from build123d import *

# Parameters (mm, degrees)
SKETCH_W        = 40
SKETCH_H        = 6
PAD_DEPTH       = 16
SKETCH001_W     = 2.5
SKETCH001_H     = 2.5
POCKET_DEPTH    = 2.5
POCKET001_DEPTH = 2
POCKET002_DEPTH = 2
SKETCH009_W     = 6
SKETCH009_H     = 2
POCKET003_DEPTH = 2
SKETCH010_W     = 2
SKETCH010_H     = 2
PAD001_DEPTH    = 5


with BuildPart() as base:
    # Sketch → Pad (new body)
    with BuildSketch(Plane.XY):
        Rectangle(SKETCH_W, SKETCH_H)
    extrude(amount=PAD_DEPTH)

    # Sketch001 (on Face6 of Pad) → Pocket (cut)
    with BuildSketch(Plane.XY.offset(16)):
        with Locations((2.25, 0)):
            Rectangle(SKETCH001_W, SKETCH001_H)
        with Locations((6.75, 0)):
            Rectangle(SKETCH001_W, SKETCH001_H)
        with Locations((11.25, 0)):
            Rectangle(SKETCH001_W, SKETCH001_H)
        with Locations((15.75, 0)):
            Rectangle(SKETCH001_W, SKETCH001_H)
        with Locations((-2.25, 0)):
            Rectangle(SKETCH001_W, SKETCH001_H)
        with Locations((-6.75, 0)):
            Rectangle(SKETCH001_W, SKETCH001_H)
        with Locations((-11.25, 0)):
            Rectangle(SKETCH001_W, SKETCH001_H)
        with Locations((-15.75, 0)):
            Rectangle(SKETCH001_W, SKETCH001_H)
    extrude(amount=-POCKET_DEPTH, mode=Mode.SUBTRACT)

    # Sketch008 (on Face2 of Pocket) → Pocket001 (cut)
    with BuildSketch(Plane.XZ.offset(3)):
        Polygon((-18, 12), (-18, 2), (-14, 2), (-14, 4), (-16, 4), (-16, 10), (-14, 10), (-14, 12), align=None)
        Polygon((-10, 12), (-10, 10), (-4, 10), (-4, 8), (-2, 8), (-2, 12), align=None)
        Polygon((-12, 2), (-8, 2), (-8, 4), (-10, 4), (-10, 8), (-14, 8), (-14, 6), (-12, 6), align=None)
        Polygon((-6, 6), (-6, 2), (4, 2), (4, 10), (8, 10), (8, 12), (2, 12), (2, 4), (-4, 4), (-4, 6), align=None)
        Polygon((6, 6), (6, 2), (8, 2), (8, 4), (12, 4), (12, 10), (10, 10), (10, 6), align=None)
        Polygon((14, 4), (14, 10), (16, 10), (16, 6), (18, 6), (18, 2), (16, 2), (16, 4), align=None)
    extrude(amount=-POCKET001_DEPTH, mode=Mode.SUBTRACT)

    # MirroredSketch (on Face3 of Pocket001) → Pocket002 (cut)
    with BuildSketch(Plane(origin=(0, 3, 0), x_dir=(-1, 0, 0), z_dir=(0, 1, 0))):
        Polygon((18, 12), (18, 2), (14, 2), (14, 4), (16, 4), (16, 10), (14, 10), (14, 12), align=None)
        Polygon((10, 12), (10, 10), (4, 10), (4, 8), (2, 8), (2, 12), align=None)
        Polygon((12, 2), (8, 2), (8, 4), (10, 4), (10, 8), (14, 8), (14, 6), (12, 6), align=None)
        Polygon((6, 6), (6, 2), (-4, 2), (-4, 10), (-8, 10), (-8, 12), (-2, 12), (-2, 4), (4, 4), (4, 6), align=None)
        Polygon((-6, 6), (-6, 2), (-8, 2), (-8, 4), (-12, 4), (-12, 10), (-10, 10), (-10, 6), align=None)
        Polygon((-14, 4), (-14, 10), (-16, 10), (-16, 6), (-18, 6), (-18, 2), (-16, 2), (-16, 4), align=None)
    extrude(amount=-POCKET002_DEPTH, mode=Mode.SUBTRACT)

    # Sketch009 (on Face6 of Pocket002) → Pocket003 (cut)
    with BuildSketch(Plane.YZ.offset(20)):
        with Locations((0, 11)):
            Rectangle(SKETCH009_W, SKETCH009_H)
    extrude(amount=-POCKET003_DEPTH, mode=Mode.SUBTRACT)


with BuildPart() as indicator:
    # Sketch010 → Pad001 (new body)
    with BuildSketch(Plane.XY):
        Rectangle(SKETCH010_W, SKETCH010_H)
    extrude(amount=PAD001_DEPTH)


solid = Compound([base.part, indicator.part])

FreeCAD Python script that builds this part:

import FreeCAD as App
import Part
import Sketcher

doc = App.newDocument("Part")
body = doc.addObject("PartDesign::Body", "Body")

# Sketch on XY plane
sketch1 = body.newObject("Sketcher::SketchObject", "Sketch")
sketch1.AttachmentSupport = (doc.getObject("XY_Plane"), [""])
sketch1.MapMode = "FlatFace"
sketch1.addGeometry([
    Part.LineSegment(App.Vector(-20, 3, 0), App.Vector(-20, -3, 0)),
    Part.LineSegment(App.Vector(-20, -3, 0), App.Vector(20, -3, 0)),
    Part.LineSegment(App.Vector(20, -3, 0), App.Vector(20, 3, 0)),
    Part.LineSegment(App.Vector(20, 3, 0), App.Vector(-20, 3, 0)),
], False)
sketch1.addConstraint([
    Sketcher.Constraint("Coincident", 0, 2, 1, 1),
    Sketcher.Constraint("Coincident", 1, 2, 2, 1),
    Sketcher.Constraint("Coincident", 2, 2, 3, 1),
    Sketcher.Constraint("Coincident", 3, 2, 0, 1),
    Sketcher.Constraint("Vertical", 0),
    Sketcher.Constraint("Horizontal", 1),
    Sketcher.Constraint("Vertical", 2),
    Sketcher.Constraint("Horizontal", 3),
    Sketcher.Constraint("Symmetric", 0, 2, 2, 2, -1, 1),
    Sketcher.Constraint("DistanceX", 1, 1, 1, 2, 40.0),
    Sketcher.Constraint("DistanceY", 0, 2, 0, 1, 6.0),
])
pad1 = body.newObject("PartDesign::Pad", "Pad")
pad1.Profile = sketch1
pad1.Length = 16

# Sketch on XY plane
sketch2 = body.newObject("Sketcher::SketchObject", "Sketch001")
sketch2.AttachmentSupport = (doc.getObject("XY_Plane"), [""])
sketch2.MapMode = "FlatFace"
sketch2.AttachmentOffset = App.Placement(App.Vector(0, 0, 16), App.Rotation())
sketch2.addGeometry([
    Part.LineSegment(App.Vector(1, 1.25, 0), App.Vector(1, -1.25, 0)),  # 0
    Part.LineSegment(App.Vector(1, -1.25, 0), App.Vector(3.5, -1.25, 0)),  # 1
    Part.LineSegment(App.Vector(3.5, -1.25, 0), App.Vector(3.5, 1.25, 0)),  # 2
    Part.LineSegment(App.Vector(3.5, 1.25, 0), App.Vector(1, 1.25, 0)),  # 3
    Part.LineSegment(App.Vector(5.5, 1.25, 0), App.Vector(5.5, -1.25, 0)),  # 4
    Part.LineSegment(App.Vector(5.5, -1.25, 0), App.Vector(8, -1.25, 0)),  # 5
    Part.LineSegment(App.Vector(8, -1.25, 0), App.Vector(8, 1.25, 0)),  # 6
    Part.LineSegment(App.Vector(8, 1.25, 0), App.Vector(5.5, 1.25, 0)),  # 7
    Part.LineSegment(App.Vector(10, 1.25, 0), App.Vector(10, -1.25, 0)),  # 8
    Part.LineSegment(App.Vector(10, -1.25, 0), App.Vector(12.5, -1.25, 0)),  # 9
    Part.LineSegment(App.Vector(12.5, -1.25, 0), App.Vector(12.5, 1.25, 0)),  # 10
    Part.LineSegment(App.Vector(12.5, 1.25, 0), App.Vector(10, 1.25, 0)),  # 11
    Part.LineSegment(App.Vector(14.5, 1.25, 0), App.Vector(14.5, -1.25, 0)),  # 12
    Part.LineSegment(App.Vector(14.5, -1.25, 0), App.Vector(17, -1.25, 0)),  # 13
    Part.LineSegment(App.Vector(17, -1.25, 0), App.Vector(17, 1.25, 0)),  # 14
    Part.LineSegment(App.Vector(17, 1.25, 0), App.Vector(14.5, 1.25, 0)),  # 15
    Part.LineSegment(App.Vector(-3.5, 1.25, 0), App.Vector(-3.5, -1.25, 0)),  # 16
    Part.LineSegment(App.Vector(-3.5, -1.25, 0), App.Vector(-1, -1.25, 0)),  # 17
    Part.LineSegment(App.Vector(-1, -1.25, 0), App.Vector(-1, 1.25, 0)),  # 18
    Part.LineSegment(App.Vector(-1, 1.25, 0), App.Vector(-3.5, 1.25, 0)),  # 19
    Part.LineSegment(App.Vector(-8, 1.25, 0), App.Vector(-8, -1.25, 0)),  # 20
    Part.LineSegment(App.Vector(-8, -1.25, 0), App.Vector(-5.5, -1.25, 0)),  # 21
    Part.LineSegment(App.Vector(-5.5, -1.25, 0), App.Vector(-5.5, 1.25, 0)),  # 22
    Part.LineSegment(App.Vector(-5.5, 1.25, 0), App.Vector(-8, 1.25, 0)),  # 23
    Part.LineSegment(App.Vector(-12.5, 1.25, 0), App.Vector(-12.5, -1.25, 0)),  # 24
    Part.LineSegment(App.Vector(-12.5, -1.25, 0), App.Vector(-10, -1.25, 0)),  # 25
    Part.LineSegment(App.Vector(-10, -1.25, 0), App.Vector(-10, 1.25, 0)),  # 26
    Part.LineSegment(App.Vector(-10, 1.25, 0), App.Vector(-12.5, 1.25, 0)),  # 27
    Part.LineSegment(App.Vector(-17, 1.25, 0), App.Vector(-17, -1.25, 0)),  # 28
    Part.LineSegment(App.Vector(-17, -1.25, 0), App.Vector(-14.5, -1.25, 0)),  # 29
    Part.LineSegment(App.Vector(-14.5, -1.25, 0), App.Vector(-14.5, 1.25, 0)),  # 30
    Part.LineSegment(App.Vector(-14.5, 1.25, 0), App.Vector(-17, 1.25, 0)),  # 31
], False)
sketch2.addConstraint([
    Sketcher.Constraint("Coincident", 0, 2, 1, 1),
    Sketcher.Constraint("Coincident", 1, 2, 2, 1),
    Sketcher.Constraint("Coincident", 2, 2, 3, 1),
    Sketcher.Constraint("Coincident", 3, 2, 0, 1),
    Sketcher.Constraint("Coincident", 4, 2, 5, 1),
    Sketcher.Constraint("Coincident", 5, 2, 6, 1),
    Sketcher.Constraint("Coincident", 6, 2, 7, 1),
    Sketcher.Constraint("Coincident", 7, 2, 4, 1),
    Sketcher.Constraint("Coincident", 8, 2, 9, 1),
    Sketcher.Constraint("Coincident", 9, 2, 10, 1),
    Sketcher.Constraint("Coincident", 10, 2, 11, 1),
    Sketcher.Constraint("Coincident", 11, 2, 8, 1),
    Sketcher.Constraint("Coincident", 12, 2, 13, 1),
    Sketcher.Constraint("Coincident", 13, 2, 14, 1),
    Sketcher.Constraint("Coincident", 14, 2, 15, 1),
    Sketcher.Constraint("Coincident", 15, 2, 12, 1),
    Sketcher.Constraint("Coincident", 16, 2, 17, 1),
    Sketcher.Constraint("Coincident", 17, 2, 18, 1),
    Sketcher.Constraint("Coincident", 18, 2, 19, 1),
    Sketcher.Constraint("Coincident", 19, 2, 16, 1),
    Sketcher.Constraint("Coincident", 20, 2, 21, 1),
    Sketcher.Constraint("Coincident", 21, 2, 22, 1),
    Sketcher.Constraint("Coincident", 22, 2, 23, 1),
    Sketcher.Constraint("Coincident", 23, 2, 20, 1),
    Sketcher.Constraint("Coincident", 24, 2, 25, 1),
    Sketcher.Constraint("Coincident", 25, 2, 26, 1),
    Sketcher.Constraint("Coincident", 26, 2, 27, 1),
    Sketcher.Constraint("Coincident", 27, 2, 24, 1),
    Sketcher.Constraint("Coincident", 28, 2, 29, 1),
    Sketcher.Constraint("Coincident", 29, 2, 30, 1),
    Sketcher.Constraint("Coincident", 30, 2, 31, 1),
    Sketcher.Constraint("Coincident", 31, 2, 28, 1),
    Sketcher.Constraint("Vertical", 0),
    Sketcher.Constraint("Horizontal", 1),
    Sketcher.Constraint("Vertical", 2),
    Sketcher.Constraint("Horizontal", 3),
    Sketcher.Constraint("Vertical", 4),
    Sketcher.Constraint("Horizontal", 5),
    Sketcher.Constraint("Vertical", 6),
    Sketcher.Constraint("Horizontal", 7),
    Sketcher.Constraint("Vertical", 8),
    Sketcher.Constraint("Horizontal", 9),
    Sketcher.Constraint("Vertical", 10),
    Sketcher.Constraint("Horizontal", 11),
    Sketcher.Constraint("Vertical", 12),
    Sketcher.Constraint("Horizontal", 13),
    Sketcher.Constraint("Vertical", 14),
    Sketcher.Constraint("Horizontal", 15),
    Sketcher.Constraint("Vertical", 16),
    Sketcher.Constraint("Horizontal", 17),
    Sketcher.Constraint("Vertical", 18),
    Sketcher.Constraint("Horizontal", 19),
    Sketcher.Constraint("Vertical", 20),
    Sketcher.Constraint("Horizontal", 21),
    Sketcher.Constraint("Vertical", 22),
    Sketcher.Constraint("Horizontal", 23),
    Sketcher.Constraint("Vertical", 24),
    Sketcher.Constraint("Horizontal", 25),
    Sketcher.Constraint("Vertical", 26),
    Sketcher.Constraint("Horizontal", 27),
    Sketcher.Constraint("Vertical", 28),
    Sketcher.Constraint("Horizontal", 29),
    Sketcher.Constraint("Vertical", 30),
    Sketcher.Constraint("Horizontal", 31),
    Sketcher.Constraint("Symmetric", 2, 2, 16, 2, -1, 1),
    Sketcher.Constraint("Symmetric", 0, 2, 18, 2, -1, 1),
    Sketcher.Constraint("Symmetric", 6, 2, 20, 2, -1, 1),
    Sketcher.Constraint("Symmetric", 4, 2, 22, 2, -1, 1),
    Sketcher.Constraint("Symmetric", 10, 2, 24, 2, -1, 1),
    Sketcher.Constraint("Symmetric", 8, 2, 26, 2, -1, 1),
    Sketcher.Constraint("Symmetric", 14, 2, 28, 2, -1, 1),
    Sketcher.Constraint("Symmetric", 12, 2, 30, 2, -1, 1),
    Sketcher.Constraint("Horizontal", 1, 2, 4, 2),
    Sketcher.Constraint("Horizontal", 3, 2, 6, 2),
    Sketcher.Constraint("Horizontal", 5, 2, 8, 2),
    Sketcher.Constraint("Horizontal", 7, 2, 10, 2),
    Sketcher.Constraint("Horizontal", 9, 2, 12, 2),
    Sketcher.Constraint("Horizontal", 11, 2, 14, 2),
    Sketcher.Constraint("Horizontal", 13, 2, 16, 2),
    Sketcher.Constraint("Equal", 3, 5),
    Sketcher.Constraint("Equal", 7, 9),
    Sketcher.Constraint("Equal", 11, 13),
    Sketcher.Constraint("Equal", 31, 0),
    Sketcher.Constraint("DistanceX", 1, 1, 1, 2, 2.5),
    Sketcher.Constraint("DistanceX", -1, 1, 0, 2, 1.0),
    Sketcher.Constraint("DistanceX", -1, 1, 5, 2, 8.0),
    Sketcher.Constraint("DistanceX", -1, 1, 8, 2, 10.0),
    Sketcher.Constraint("DistanceX", -1, 1, 13, 2, 17.0),
])
pocket1 = body.newObject("PartDesign::Pocket", "Pocket")
pocket1.Profile = sketch2
pocket1.Length = 2.5

# Sketch on XZ plane
sketch3 = body.newObject("Sketcher::SketchObject", "Sketch002")
sketch3.AttachmentSupport = (doc.getObject("XZ_Plane"), [""])
sketch3.MapMode = "FlatFace"
sketch3.AttachmentOffset = App.Placement(App.Vector(0, 0, 3), App.Rotation())
sketch3.addGeometry([
    Part.LineSegment(App.Vector(-18, 12, 0), App.Vector(-18, 2, 0)),  # 0
    Part.LineSegment(App.Vector(-18, 2, 0), App.Vector(-14, 2, 0)),  # 1
    Part.LineSegment(App.Vector(-14, 2, 0), App.Vector(-14, 4, 0)),  # 2
    Part.LineSegment(App.Vector(-14, 4, 0), App.Vector(-16, 4, 0)),  # 3
    Part.LineSegment(App.Vector(-16, 4, 0), App.Vector(-16, 10, 0)),  # 4
    Part.LineSegment(App.Vector(-16, 10, 0), App.Vector(-14, 10, 0)),  # 5
    Part.LineSegment(App.Vector(-14, 10, 0), App.Vector(-14, 12, 0)),  # 6
    Part.LineSegment(App.Vector(-14, 12, 0), App.Vector(-18, 12, 0)),  # 7
    Part.LineSegment(App.Vector(-10, 12, 0), App.Vector(-10, 10, 0)),  # 8
    Part.LineSegment(App.Vector(-10, 10, 0), App.Vector(-4, 10, 0)),  # 9
    Part.LineSegment(App.Vector(-4, 10, 0), App.Vector(-4, 8, 0)),  # 10
    Part.LineSegment(App.Vector(-4, 8, 0), App.Vector(-2, 8, 0)),  # 11
    Part.LineSegment(App.Vector(-2, 8, 0), App.Vector(-2, 12, 0)),  # 12
    Part.LineSegment(App.Vector(-2, 12, 0), App.Vector(-10, 12, 0)),  # 13
    Part.LineSegment(App.Vector(-12, 2, 0), App.Vector(-8, 2, 0)),  # 14
    Part.LineSegment(App.Vector(-8, 2, 0), App.Vector(-8, 4, 0)),  # 15
    Part.LineSegment(App.Vector(-8, 4, 0), App.Vector(-10, 4, 0)),  # 16
    Part.LineSegment(App.Vector(-10, 4, 0), App.Vector(-10, 8, 0)),  # 17
    Part.LineSegment(App.Vector(-10, 8, 0), App.Vector(-14, 8, 0)),  # 18
    Part.LineSegment(App.Vector(-14, 8, 0), App.Vector(-14, 6, 0)),  # 19
    Part.LineSegment(App.Vector(-14, 6, 0), App.Vector(-12, 6, 0)),  # 20
    Part.LineSegment(App.Vector(-12, 6, 0), App.Vector(-12, 2, 0)),  # 21
    Part.LineSegment(App.Vector(-6, 6, 0), App.Vector(-6, 2, 0)),  # 22
    Part.LineSegment(App.Vector(-6, 2, 0), App.Vector(4, 2, 0)),  # 23
    Part.LineSegment(App.Vector(4, 2, 0), App.Vector(4, 10, 0)),  # 24
    Part.LineSegment(App.Vector(4, 10, 0), App.Vector(8, 10, 0)),  # 25
    Part.LineSegment(App.Vector(8, 10, 0), App.Vector(8, 12, 0)),  # 26
    Part.LineSegment(App.Vector(8, 12, 0), App.Vector(2, 12, 0)),  # 27
    Part.LineSegment(App.Vector(2, 12, 0), App.Vector(2, 4, 0)),  # 28
    Part.LineSegment(App.Vector(2, 4, 0), App.Vector(-4, 4, 0)),  # 29
    Part.LineSegment(App.Vector(-4, 4, 0), App.Vector(-4, 6, 0)),  # 30
    Part.LineSegment(App.Vector(-4, 6, 0), App.Vector(-6, 6, 0)),  # 31
    Part.LineSegment(App.Vector(6, 6, 0), App.Vector(6, 2, 0)),  # 32
    Part.LineSegment(App.Vector(6, 2, 0), App.Vector(8, 2, 0)),  # 33
    Part.LineSegment(App.Vector(8, 2, 0), App.Vector(8, 4, 0)),  # 34
    Part.LineSegment(App.Vector(8, 4, 0), App.Vector(12, 4, 0)),  # 35
    Part.LineSegment(App.Vector(12, 4, 0), App.Vector(12, 10, 0)),  # 36
    Part.LineSegment(App.Vector(12, 10, 0), App.Vector(10, 10, 0)),  # 37
    Part.LineSegment(App.Vector(10, 10, 0), App.Vector(10, 6, 0)),  # 38
    Part.LineSegment(App.Vector(10, 6, 0), App.Vector(6, 6, 0)),  # 39
    Part.LineSegment(App.Vector(14, 10, 0), App.Vector(14, 4, 0)),  # 40
    Part.LineSegment(App.Vector(14, 4, 0), App.Vector(16, 4, 0)),  # 41
    Part.LineSegment(App.Vector(16, 4, 0), App.Vector(16, 2, 0)),  # 42
    Part.LineSegment(App.Vector(16, 2, 0), App.Vector(18, 2, 0)),  # 43
    Part.LineSegment(App.Vector(18, 2, 0), App.Vector(18, 6, 0)),  # 44
    Part.LineSegment(App.Vector(18, 6, 0), App.Vector(16, 6, 0)),  # 45
    Part.LineSegment(App.Vector(16, 6, 0), App.Vector(16, 10, 0)),  # 46
    Part.LineSegment(App.Vector(16, 10, 0), App.Vector(14, 10, 0)),  # 47
], False)
sketch3.addConstraint([
    Sketcher.Constraint("Coincident", 0, 2, 1, 1),
    Sketcher.Constraint("Coincident", 1, 2, 2, 1),
    Sketcher.Constraint("Coincident", 2, 2, 3, 1),
    Sketcher.Constraint("Coincident", 3, 2, 4, 1),
    Sketcher.Constraint("Coincident", 4, 2, 5, 1),
    Sketcher.Constraint("Coincident", 5, 2, 6, 1),
    Sketcher.Constraint("Coincident", 6, 2, 7, 1),
    Sketcher.Constraint("Coincident", 7, 2, 0, 1),
    Sketcher.Constraint("Coincident", 8, 2, 9, 1),
    Sketcher.Constraint("Coincident", 9, 2, 10, 1),
    Sketcher.Constraint("Coincident", 10, 2, 11, 1),
    Sketcher.Constraint("Coincident", 11, 2, 12, 1),
    Sketcher.Constraint("Coincident", 12, 2, 13, 1),
    Sketcher.Constraint("Coincident", 13, 2, 8, 1),
    Sketcher.Constraint("Coincident", 14, 2, 15, 1),
    Sketcher.Constraint("Coincident", 15, 2, 16, 1),
    Sketcher.Constraint("Coincident", 16, 2, 17, 1),
    Sketcher.Constraint("Coincident", 17, 2, 18, 1),
    Sketcher.Constraint("Coincident", 18, 2, 19, 1),
    Sketcher.Constraint("Coincident", 19, 2, 20, 1),
    Sketcher.Constraint("Coincident", 20, 2, 21, 1),
    Sketcher.Constraint("Coincident", 21, 2, 14, 1),
    Sketcher.Constraint("Coincident", 22, 2, 23, 1),
    Sketcher.Constraint("Coincident", 23, 2, 24, 1),
    Sketcher.Constraint("Coincident", 24, 2, 25, 1),
    Sketcher.Constraint("Coincident", 25, 2, 26, 1),
    Sketcher.Constraint("Coincident", 26, 2, 27, 1),
    Sketcher.Constraint("Coincident", 27, 2, 28, 1),
    Sketcher.Constraint("Coincident", 28, 2, 29, 1),
    Sketcher.Constraint("Coincident", 29, 2, 30, 1),
    Sketcher.Constraint("Coincident", 30, 2, 31, 1),
    Sketcher.Constraint("Coincident", 31, 2, 22, 1),
    Sketcher.Constraint("Coincident", 32, 2, 33, 1),
    Sketcher.Constraint("Coincident", 33, 2, 34, 1),
    Sketcher.Constraint("Coincident", 34, 2, 35, 1),
    Sketcher.Constraint("Coincident", 35, 2, 36, 1),
    Sketcher.Constraint("Coincident", 36, 2, 37, 1),
    Sketcher.Constraint("Coincident", 37, 2, 38, 1),
    Sketcher.Constraint("Coincident", 38, 2, 39, 1),
    Sketcher.Constraint("Coincident", 39, 2, 32, 1),
    Sketcher.Constraint("Coincident", 40, 2, 41, 1),
    Sketcher.Constraint("Coincident", 41, 2, 42, 1),
    Sketcher.Constraint("Coincident", 42, 2, 43, 1),
    Sketcher.Constraint("Coincident", 43, 2, 44, 1),
    Sketcher.Constraint("Coincident", 44, 2, 45, 1),
    Sketcher.Constraint("Coincident", 45, 2, 46, 1),
    Sketcher.Constraint("Coincident", 46, 2, 47, 1),
    Sketcher.Constraint("Coincident", 47, 2, 40, 1),
    Sketcher.Constraint("Vertical", 0),
    Sketcher.Constraint("Horizontal", 1),
    Sketcher.Constraint("Vertical", 2),
    Sketcher.Constraint("Horizontal", 3),
    Sketcher.Constraint("Vertical", 4),
    Sketcher.Constraint("Horizontal", 5),
    Sketcher.Constraint("Vertical", 6),
    Sketcher.Constraint("Horizontal", 7),
    Sketcher.Constraint("Vertical", 8),
    Sketcher.Constraint("Horizontal", 9),
    Sketcher.Constraint("Vertical", 10),
    Sketcher.Constraint("Horizontal", 11),
    Sketcher.Constraint("Vertical", 12),
    Sketcher.Constraint("Horizontal", 13),
    Sketcher.Constraint("Horizontal", 14),
    Sketcher.Constraint("Vertical", 15),
    Sketcher.Constraint("Horizontal", 16),
    Sketcher.Constraint("Vertical", 17),
    Sketcher.Constraint("Horizontal", 18),
    Sketcher.Constraint("Vertical", 19),
    Sketcher.Constraint("Horizontal", 20),
    Sketcher.Constraint("Vertical", 21),
    Sketcher.Constraint("Vertical", 22),
    Sketcher.Constraint("Horizontal", 23),
    Sketcher.Constraint("Vertical", 24),
    Sketcher.Constraint("Horizontal", 25),
    Sketcher.Constraint("Vertical", 26),
    Sketcher.Constraint("Horizontal", 27),
    Sketcher.Constraint("Vertical", 28),
    Sketcher.Constraint("Horizontal", 29),
    Sketcher.Constraint("Vertical", 30),
    Sketcher.Constraint("Horizontal", 31),
    Sketcher.Constraint("Vertical", 32),
    Sketcher.Constraint("Horizontal", 33),
    Sketcher.Constraint("Vertical", 34),
    Sketcher.Constraint("Horizontal", 35),
    Sketcher.Constraint("Vertical", 36),
    Sketcher.Constraint("Horizontal", 37),
    Sketcher.Constraint("Vertical", 38),
    Sketcher.Constraint("Horizontal", 39),
    Sketcher.Constraint("Vertical", 40),
    Sketcher.Constraint("Horizontal", 41),
    Sketcher.Constraint("Vertical", 42),
    Sketcher.Constraint("Horizontal", 43),
    Sketcher.Constraint("Vertical", 44),
    Sketcher.Constraint("Horizontal", 45),
    Sketcher.Constraint("Vertical", 46),
    Sketcher.Constraint("Horizontal", 47),
    Sketcher.Constraint("Symmetric", 9, 2, 24, 2, -2),
    Sketcher.Constraint("Symmetric", 12, 2, 27, 2, -2),
    Sketcher.Constraint("Symmetric", 22, 2, 32, 2, -2),
    Sketcher.Constraint("Symmetric", 14, 2, 33, 2, -2),
    Sketcher.Constraint("Symmetric", 8, 2, 37, 2, -2),
    Sketcher.Constraint("Symmetric", 2, 2, 40, 2, -2),
    Sketcher.Constraint("Symmetric", 0, 2, 43, 2, -2),
    Sketcher.Constraint("Symmetric", 4, 2, 46, 2, -2),
    Sketcher.Constraint("Horizontal", 5, 2, 8, 2),
    Sketcher.Constraint("Horizontal", 7, 2, 12, 2),
    Sketcher.Constraint("Horizontal", 1, 2, 14, 2),
    Sketcher.Constraint("Horizontal", 3, 2, 15, 2),
    Sketcher.Constraint("Horizontal", 11, 2, 17, 2),
    Sketcher.Constraint("Horizontal", 16, 2, 28, 2),
    Sketcher.Constraint("Horizontal", 20, 2, 30, 2),
    Sketcher.Constraint("Horizontal", 29, 2, 34, 2),
    Sketcher.Constraint("Horizontal", 31, 2, 38, 2),
    Sketcher.Constraint("Horizontal", 39, 2, 44, 2),
    Sketcher.Constraint("Vertical", 2, 2, 5, 2),
    Sketcher.Constraint("Vertical", 13, 2, 16, 2),
    Sketcher.Constraint("Vertical", 6, 2, 18, 2),
    Sketcher.Constraint("Vertical", 10, 2, 29, 2),
    Sketcher.Constraint("Vertical", 26, 2, 33, 2),
    Sketcher.Constraint("Vertical", 42, 2, 45, 2),
    Sketcher.Constraint("Equal", 5, 11),
    Sketcher.Constraint("Equal", 7, 14),
    Sketcher.Constraint("Equal", 11, 16),
    Sketcher.Constraint("Equal", 14, 18),
    Sketcher.Constraint("Equal", 18, 25),
    Sketcher.Constraint("Equal", 27, 29),
    Sketcher.Constraint("Equal", 20, 31),
    Sketcher.Constraint("Equal", 31, 33),
    Sketcher.Constraint("Equal", 25, 35),
    Sketcher.Constraint("Equal", 23, 0),
    Sketcher.Constraint("Equal", 47, 2),
    Sketcher.Constraint("Equal", 29, 4),
    Sketcher.Constraint("Equal", 8, 10),
    Sketcher.Constraint("Equal", 15, 19),
    Sketcher.Constraint("DistanceX", 1, 1, 1, 2, 4.0),
    Sketcher.Constraint("DistanceY", -1, 1, 0, 2, 2.0),
])
pocket2 = body.newObject("PartDesign::Pocket", "Pocket001")
pocket2.Profile = sketch3
pocket2.Length = 2

# Sketch on XZ plane
sketch4 = body.newObject("Sketcher::SketchObject", "Sketch003")
sketch4.AttachmentSupport = (doc.getObject("XZ_Plane"), [""])
sketch4.MapMode = "FlatFace"
sketch4.AttachmentOffset = App.Placement(App.Vector(0, 0, -3), App.Rotation())
sketch4.addGeometry([
    Part.LineSegment(App.Vector(-18, 2, 0), App.Vector(-18, 12, 0)),  # 0
    Part.LineSegment(App.Vector(-18, 12, 0), App.Vector(-14, 12, 0)),  # 1
    Part.LineSegment(App.Vector(-14, 12, 0), App.Vector(-14, 10, 0)),  # 2
    Part.LineSegment(App.Vector(-14, 10, 0), App.Vector(-16, 10, 0)),  # 3
    Part.LineSegment(App.Vector(-16, 10, 0), App.Vector(-16, 4, 0)),  # 4
    Part.LineSegment(App.Vector(-16, 4, 0), App.Vector(-14, 4, 0)),  # 5
    Part.LineSegment(App.Vector(-14, 4, 0), App.Vector(-14, 2, 0)),  # 6
    Part.LineSegment(App.Vector(-14, 2, 0), App.Vector(-18, 2, 0)),  # 7
    Part.LineSegment(App.Vector(-10, 10, 0), App.Vector(-10, 12, 0)),  # 8
    Part.LineSegment(App.Vector(-10, 12, 0), App.Vector(-2, 12, 0)),  # 9
    Part.LineSegment(App.Vector(-2, 12, 0), App.Vector(-2, 8, 0)),  # 10
    Part.LineSegment(App.Vector(-2, 8, 0), App.Vector(-4, 8, 0)),  # 11
    Part.LineSegment(App.Vector(-4, 8, 0), App.Vector(-4, 10, 0)),  # 12
    Part.LineSegment(App.Vector(-4, 10, 0), App.Vector(-10, 10, 0)),  # 13
    Part.LineSegment(App.Vector(-8, 2, 0), App.Vector(-12, 2, 0)),  # 14
    Part.LineSegment(App.Vector(-12, 2, 0), App.Vector(-12, 6, 0)),  # 15
    Part.LineSegment(App.Vector(-12, 6, 0), App.Vector(-14, 6, 0)),  # 16
    Part.LineSegment(App.Vector(-14, 6, 0), App.Vector(-14, 8, 0)),  # 17
    Part.LineSegment(App.Vector(-14, 8, 0), App.Vector(-10, 8, 0)),  # 18
    Part.LineSegment(App.Vector(-10, 8, 0), App.Vector(-10, 4, 0)),  # 19
    Part.LineSegment(App.Vector(-10, 4, 0), App.Vector(-8, 4, 0)),  # 20
    Part.LineSegment(App.Vector(-8, 4, 0), App.Vector(-8, 2, 0)),  # 21
    Part.LineSegment(App.Vector(-6, 2, 0), App.Vector(-6, 6, 0)),  # 22
    Part.LineSegment(App.Vector(-6, 6, 0), App.Vector(-4, 6, 0)),  # 23
    Part.LineSegment(App.Vector(-4, 6, 0), App.Vector(-4, 4, 0)),  # 24
    Part.LineSegment(App.Vector(-4, 4, 0), App.Vector(2, 4, 0)),  # 25
    Part.LineSegment(App.Vector(2, 4, 0), App.Vector(2, 12, 0)),  # 26
    Part.LineSegment(App.Vector(2, 12, 0), App.Vector(8, 12, 0)),  # 27
    Part.LineSegment(App.Vector(8, 12, 0), App.Vector(8, 10, 0)),  # 28
    Part.LineSegment(App.Vector(8, 10, 0), App.Vector(4, 10, 0)),  # 29
    Part.LineSegment(App.Vector(4, 10, 0), App.Vector(4, 2, 0)),  # 30
    Part.LineSegment(App.Vector(4, 2, 0), App.Vector(-6, 2, 0)),  # 31
    Part.LineSegment(App.Vector(6, 2, 0), App.Vector(6, 6, 0)),  # 32
    Part.LineSegment(App.Vector(6, 6, 0), App.Vector(10, 6, 0)),  # 33
    Part.LineSegment(App.Vector(10, 6, 0), App.Vector(10, 10, 0)),  # 34
    Part.LineSegment(App.Vector(10, 10, 0), App.Vector(12, 10, 0)),  # 35
    Part.LineSegment(App.Vector(12, 10, 0), App.Vector(12, 4, 0)),  # 36
    Part.LineSegment(App.Vector(12, 4, 0), App.Vector(8, 4, 0)),  # 37
    Part.LineSegment(App.Vector(8, 4, 0), App.Vector(8, 2, 0)),  # 38
    Part.LineSegment(App.Vector(8, 2, 0), App.Vector(6, 2, 0)),  # 39
    Part.LineSegment(App.Vector(14, 4, 0), App.Vector(14, 10, 0)),  # 40
    Part.LineSegment(App.Vector(14, 10, 0), App.Vector(16, 10, 0)),  # 41
    Part.LineSegment(App.Vector(16, 10, 0), App.Vector(16, 6, 0)),  # 42
    Part.LineSegment(App.Vector(16, 6, 0), App.Vector(18, 6, 0)),  # 43
    Part.LineSegment(App.Vector(18, 6, 0), App.Vector(18, 2, 0)),  # 44
    Part.LineSegment(App.Vector(18, 2, 0), App.Vector(16, 2, 0)),  # 45
    Part.LineSegment(App.Vector(16, 2, 0), App.Vector(16, 4, 0)),  # 46
    Part.LineSegment(App.Vector(16, 4, 0), App.Vector(14, 4, 0)),  # 47
], False)
sketch4.addConstraint([
    Sketcher.Constraint("Coincident", 0, 2, 1, 1),
    Sketcher.Constraint("Coincident", 1, 2, 2, 1),
    Sketcher.Constraint("Coincident", 2, 2, 3, 1),
    Sketcher.Constraint("Coincident", 3, 2, 4, 1),
    Sketcher.Constraint("Coincident", 4, 2, 5, 1),
    Sketcher.Constraint("Coincident", 5, 2, 6, 1),
    Sketcher.Constraint("Coincident", 6, 2, 7, 1),
    Sketcher.Constraint("Coincident", 7, 2, 0, 1),
    Sketcher.Constraint("Coincident", 8, 2, 9, 1),
    Sketcher.Constraint("Coincident", 9, 2, 10, 1),
    Sketcher.Constraint("Coincident", 10, 2, 11, 1),
    Sketcher.Constraint("Coincident", 11, 2, 12, 1),
    Sketcher.Constraint("Coincident", 12, 2, 13, 1),
    Sketcher.Constraint("Coincident", 13, 2, 8, 1),
    Sketcher.Constraint("Coincident", 14, 2, 15, 1),
    Sketcher.Constraint("Coincident", 15, 2, 16, 1),
    Sketcher.Constraint("Coincident", 16, 2, 17, 1),
    Sketcher.Constraint("Coincident", 17, 2, 18, 1),
    Sketcher.Constraint("Coincident", 18, 2, 19, 1),
    Sketcher.Constraint("Coincident", 19, 2, 20, 1),
    Sketcher.Constraint("Coincident", 20, 2, 21, 1),
    Sketcher.Constraint("Coincident", 21, 2, 14, 1),
    Sketcher.Constraint("Coincident", 22, 2, 23, 1),
    Sketcher.Constraint("Coincident", 23, 2, 24, 1),
    Sketcher.Constraint("Coincident", 24, 2, 25, 1),
    Sketcher.Constraint("Coincident", 25, 2, 26, 1),
    Sketcher.Constraint("Coincident", 26, 2, 27, 1),
    Sketcher.Constraint("Coincident", 27, 2, 28, 1),
    Sketcher.Constraint("Coincident", 28, 2, 29, 1),
    Sketcher.Constraint("Coincident", 29, 2, 30, 1),
    Sketcher.Constraint("Coincident", 30, 2, 31, 1),
    Sketcher.Constraint("Coincident", 31, 2, 22, 1),
    Sketcher.Constraint("Coincident", 32, 2, 33, 1),
    Sketcher.Constraint("Coincident", 33, 2, 34, 1),
    Sketcher.Constraint("Coincident", 34, 2, 35, 1),
    Sketcher.Constraint("Coincident", 35, 2, 36, 1),
    Sketcher.Constraint("Coincident", 36, 2, 37, 1),
    Sketcher.Constraint("Coincident", 37, 2, 38, 1),
    Sketcher.Constraint("Coincident", 38, 2, 39, 1),
    Sketcher.Constraint("Coincident", 39, 2, 32, 1),
    Sketcher.Constraint("Coincident", 40, 2, 41, 1),
    Sketcher.Constraint("Coincident", 41, 2, 42, 1),
    Sketcher.Constraint("Coincident", 42, 2, 43, 1),
    Sketcher.Constraint("Coincident", 43, 2, 44, 1),
    Sketcher.Constraint("Coincident", 44, 2, 45, 1),
    Sketcher.Constraint("Coincident", 45, 2, 46, 1),
    Sketcher.Constraint("Coincident", 46, 2, 47, 1),
    Sketcher.Constraint("Coincident", 47, 2, 40, 1),
    Sketcher.Constraint("Vertical", 0),
    Sketcher.Constraint("Horizontal", 1),
    Sketcher.Constraint("Vertical", 2),
    Sketcher.Constraint("Horizontal", 3),
    Sketcher.Constraint("Vertical", 4),
    Sketcher.Constraint("Horizontal", 5),
    Sketcher.Constraint("Vertical", 6),
    Sketcher.Constraint("Horizontal", 7),
    Sketcher.Constraint("Vertical", 8),
    Sketcher.Constraint("Horizontal", 9),
    Sketcher.Constraint("Vertical", 10),
    Sketcher.Constraint("Horizontal", 11),
    Sketcher.Constraint("Vertical", 12),
    Sketcher.Constraint("Horizontal", 13),
    Sketcher.Constraint("Horizontal", 14),
    Sketcher.Constraint("Vertical", 15),
    Sketcher.Constraint("Horizontal", 16),
    Sketcher.Constraint("Vertical", 17),
    Sketcher.Constraint("Horizontal", 18),
    Sketcher.Constraint("Vertical", 19),
    Sketcher.Constraint("Horizontal", 20),
    Sketcher.Constraint("Vertical", 21),
    Sketcher.Constraint("Vertical", 22),
    Sketcher.Constraint("Horizontal", 23),
    Sketcher.Constraint("Vertical", 24),
    Sketcher.Constraint("Horizontal", 25),
    Sketcher.Constraint("Vertical", 26),
    Sketcher.Constraint("Horizontal", 27),
    Sketcher.Constraint("Vertical", 28),
    Sketcher.Constraint("Horizontal", 29),
    Sketcher.Constraint("Vertical", 30),
    Sketcher.Constraint("Horizontal", 31),
    Sketcher.Constraint("Vertical", 32),
    Sketcher.Constraint("Horizontal", 33),
    Sketcher.Constraint("Vertical", 34),
    Sketcher.Constraint("Horizontal", 35),
    Sketcher.Constraint("Vertical", 36),
    Sketcher.Constraint("Horizontal", 37),
    Sketcher.Constraint("Vertical", 38),
    Sketcher.Constraint("Horizontal", 39),
    Sketcher.Constraint("Vertical", 40),
    Sketcher.Constraint("Horizontal", 41),
    Sketcher.Constraint("Vertical", 42),
    Sketcher.Constraint("Horizontal", 43),
    Sketcher.Constraint("Vertical", 44),
    Sketcher.Constraint("Horizontal", 45),
    Sketcher.Constraint("Vertical", 46),
    Sketcher.Constraint("Horizontal", 47),
    Sketcher.Constraint("Symmetric", 9, 2, 26, 2, -2),
    Sketcher.Constraint("Symmetric", 12, 2, 29, 2, -2),
    Sketcher.Constraint("Symmetric", 22, 2, 32, 2, -2),
    Sketcher.Constraint("Symmetric", 13, 2, 34, 2, -2),
    Sketcher.Constraint("Symmetric", 20, 2, 37, 2, -2),
    Sketcher.Constraint("Symmetric", 2, 2, 40, 2, -2),
    Sketcher.Constraint("Symmetric", 7, 2, 44, 2, -2),
    Sketcher.Constraint("Symmetric", 4, 2, 46, 2, -2),
    Sketcher.Constraint("Horizontal", 1, 2, 8, 2),
    Sketcher.Constraint("Horizontal", 3, 2, 12, 2),
    Sketcher.Constraint("Horizontal", 7, 2, 14, 2),
    Sketcher.Constraint("Horizontal", 11, 2, 17, 2),
    Sketcher.Constraint("Horizontal", 5, 2, 19, 2),
    Sketcher.Constraint("Horizontal", 16, 2, 22, 2),
    Sketcher.Constraint("Horizontal", 20, 2, 24, 2),
    Sketcher.Constraint("Horizontal", 21, 2, 30, 2),
    Sketcher.Constraint("Horizontal", 31, 2, 38, 2),
    Sketcher.Constraint("Horizontal", 33, 2, 42, 2),
    Sketcher.Constraint("Vertical", 2, 2, 5, 2),
    Sketcher.Constraint("Vertical", 6, 2, 16, 2),
    Sketcher.Constraint("Vertical", 13, 2, 18, 2),
    Sketcher.Constraint("Vertical", 12, 2, 23, 2),
    Sketcher.Constraint("Vertical", 28, 2, 37, 2),
    Sketcher.Constraint("Vertical", 42, 2, 45, 2),
    Sketcher.Constraint("Equal", 5, 11),
    Sketcher.Constraint("Equal", 7, 14),
    Sketcher.Constraint("Equal", 11, 16),
    Sketcher.Constraint("Equal", 14, 18),
    Sketcher.Constraint("Equal", 20, 23),
    Sketcher.Constraint("Equal", 13, 25),
    Sketcher.Constraint("Equal", 18, 29),
    Sketcher.Constraint("Equal", 23, 35),
    Sketcher.Constraint("Equal", 33, 37),
    Sketcher.Constraint("Equal", 31, 0),
    Sketcher.Constraint("Equal", 47, 2),
    Sketcher.Constraint("Equal", 27, 4),
    Sketcher.Constraint("Equal", 37, 10),
    Sketcher.Constraint("Equal", 10, 15),
    Sketcher.Constraint("DistanceX", 1, 1, 1, 2, 4.0),
    Sketcher.Constraint("DistanceY", -1, 1, 0, 2, 12.0),
])
pocket3 = body.newObject("PartDesign::Pocket", "Pocket002")
pocket3.Profile = sketch4
pocket3.Length = 2
pocket3.Reversed = True

# Sketch on YZ plane
sketch5 = body.newObject("Sketcher::SketchObject", "Sketch004")
sketch5.AttachmentSupport = (doc.getObject("YZ_Plane"), [""])
sketch5.MapMode = "FlatFace"
sketch5.AttachmentOffset = App.Placement(App.Vector(0, 0, 20), App.Rotation())
sketch5.addGeometry([
    Part.LineSegment(App.Vector(-3, 12, 0), App.Vector(-3, 10, 0)),
    Part.LineSegment(App.Vector(-3, 10, 0), App.Vector(3, 10, 0)),
    Part.LineSegment(App.Vector(3, 10, 0), App.Vector(3, 12, 0)),
    Part.LineSegment(App.Vector(3, 12, 0), App.Vector(-3, 12, 0)),
], False)
sketch5.addConstraint([
    Sketcher.Constraint("Coincident", 0, 2, 1, 1),
    Sketcher.Constraint("Coincident", 1, 2, 2, 1),
    Sketcher.Constraint("Coincident", 2, 2, 3, 1),
    Sketcher.Constraint("Coincident", 3, 2, 0, 1),
    Sketcher.Constraint("Vertical", 0),
    Sketcher.Constraint("Horizontal", 1),
    Sketcher.Constraint("Vertical", 2),
    Sketcher.Constraint("Horizontal", 3),
    Sketcher.Constraint("DistanceX", 1, 1, 1, 2, 6.0),
    Sketcher.Constraint("DistanceY", 0, 2, 0, 1, 2.0),
    Sketcher.Constraint("DistanceX", 0, 2, -1, 1, 3.0),
    Sketcher.Constraint("DistanceY", -1, 1, 0, 2, 10.0),
])
pocket4 = body.newObject("PartDesign::Pocket", "Pocket003")
pocket4.Profile = sketch5
pocket4.Length = 2
body2 = doc.addObject("PartDesign::Body", "Body001")

# Sketch on XY plane
sketch6 = body2.newObject("Sketcher::SketchObject", "Sketch005")
sketch6.AttachmentSupport = (doc.getObject("XY_Plane001"), [""])
sketch6.MapMode = "FlatFace"
sketch6.addGeometry([
    Part.LineSegment(App.Vector(-1, 1, 0), App.Vector(-1, -1, 0)),
    Part.LineSegment(App.Vector(-1, -1, 0), App.Vector(1, -1, 0)),
    Part.LineSegment(App.Vector(1, -1, 0), App.Vector(1, 1, 0)),
    Part.LineSegment(App.Vector(1, 1, 0), App.Vector(-1, 1, 0)),
], False)
sketch6.addConstraint([
    Sketcher.Constraint("Coincident", 0, 2, 1, 1),
    Sketcher.Constraint("Coincident", 1, 2, 2, 1),
    Sketcher.Constraint("Coincident", 2, 2, 3, 1),
    Sketcher.Constraint("Coincident", 3, 2, 0, 1),
    Sketcher.Constraint("Vertical", 0),
    Sketcher.Constraint("Horizontal", 1),
    Sketcher.Constraint("Vertical", 2),
    Sketcher.Constraint("Horizontal", 3),
    Sketcher.Constraint("Symmetric", 0, 2, 2, 2, -1, 1),
    Sketcher.Constraint("Equal", 3, 0),
    Sketcher.Constraint("DistanceX", 1, 1, 1, 2, 2.0),
])
pad2 = body2.newObject("PartDesign::Pad", "Pad001")
pad2.Profile = sketch6
pad2.Length = 5

doc.recompute()
